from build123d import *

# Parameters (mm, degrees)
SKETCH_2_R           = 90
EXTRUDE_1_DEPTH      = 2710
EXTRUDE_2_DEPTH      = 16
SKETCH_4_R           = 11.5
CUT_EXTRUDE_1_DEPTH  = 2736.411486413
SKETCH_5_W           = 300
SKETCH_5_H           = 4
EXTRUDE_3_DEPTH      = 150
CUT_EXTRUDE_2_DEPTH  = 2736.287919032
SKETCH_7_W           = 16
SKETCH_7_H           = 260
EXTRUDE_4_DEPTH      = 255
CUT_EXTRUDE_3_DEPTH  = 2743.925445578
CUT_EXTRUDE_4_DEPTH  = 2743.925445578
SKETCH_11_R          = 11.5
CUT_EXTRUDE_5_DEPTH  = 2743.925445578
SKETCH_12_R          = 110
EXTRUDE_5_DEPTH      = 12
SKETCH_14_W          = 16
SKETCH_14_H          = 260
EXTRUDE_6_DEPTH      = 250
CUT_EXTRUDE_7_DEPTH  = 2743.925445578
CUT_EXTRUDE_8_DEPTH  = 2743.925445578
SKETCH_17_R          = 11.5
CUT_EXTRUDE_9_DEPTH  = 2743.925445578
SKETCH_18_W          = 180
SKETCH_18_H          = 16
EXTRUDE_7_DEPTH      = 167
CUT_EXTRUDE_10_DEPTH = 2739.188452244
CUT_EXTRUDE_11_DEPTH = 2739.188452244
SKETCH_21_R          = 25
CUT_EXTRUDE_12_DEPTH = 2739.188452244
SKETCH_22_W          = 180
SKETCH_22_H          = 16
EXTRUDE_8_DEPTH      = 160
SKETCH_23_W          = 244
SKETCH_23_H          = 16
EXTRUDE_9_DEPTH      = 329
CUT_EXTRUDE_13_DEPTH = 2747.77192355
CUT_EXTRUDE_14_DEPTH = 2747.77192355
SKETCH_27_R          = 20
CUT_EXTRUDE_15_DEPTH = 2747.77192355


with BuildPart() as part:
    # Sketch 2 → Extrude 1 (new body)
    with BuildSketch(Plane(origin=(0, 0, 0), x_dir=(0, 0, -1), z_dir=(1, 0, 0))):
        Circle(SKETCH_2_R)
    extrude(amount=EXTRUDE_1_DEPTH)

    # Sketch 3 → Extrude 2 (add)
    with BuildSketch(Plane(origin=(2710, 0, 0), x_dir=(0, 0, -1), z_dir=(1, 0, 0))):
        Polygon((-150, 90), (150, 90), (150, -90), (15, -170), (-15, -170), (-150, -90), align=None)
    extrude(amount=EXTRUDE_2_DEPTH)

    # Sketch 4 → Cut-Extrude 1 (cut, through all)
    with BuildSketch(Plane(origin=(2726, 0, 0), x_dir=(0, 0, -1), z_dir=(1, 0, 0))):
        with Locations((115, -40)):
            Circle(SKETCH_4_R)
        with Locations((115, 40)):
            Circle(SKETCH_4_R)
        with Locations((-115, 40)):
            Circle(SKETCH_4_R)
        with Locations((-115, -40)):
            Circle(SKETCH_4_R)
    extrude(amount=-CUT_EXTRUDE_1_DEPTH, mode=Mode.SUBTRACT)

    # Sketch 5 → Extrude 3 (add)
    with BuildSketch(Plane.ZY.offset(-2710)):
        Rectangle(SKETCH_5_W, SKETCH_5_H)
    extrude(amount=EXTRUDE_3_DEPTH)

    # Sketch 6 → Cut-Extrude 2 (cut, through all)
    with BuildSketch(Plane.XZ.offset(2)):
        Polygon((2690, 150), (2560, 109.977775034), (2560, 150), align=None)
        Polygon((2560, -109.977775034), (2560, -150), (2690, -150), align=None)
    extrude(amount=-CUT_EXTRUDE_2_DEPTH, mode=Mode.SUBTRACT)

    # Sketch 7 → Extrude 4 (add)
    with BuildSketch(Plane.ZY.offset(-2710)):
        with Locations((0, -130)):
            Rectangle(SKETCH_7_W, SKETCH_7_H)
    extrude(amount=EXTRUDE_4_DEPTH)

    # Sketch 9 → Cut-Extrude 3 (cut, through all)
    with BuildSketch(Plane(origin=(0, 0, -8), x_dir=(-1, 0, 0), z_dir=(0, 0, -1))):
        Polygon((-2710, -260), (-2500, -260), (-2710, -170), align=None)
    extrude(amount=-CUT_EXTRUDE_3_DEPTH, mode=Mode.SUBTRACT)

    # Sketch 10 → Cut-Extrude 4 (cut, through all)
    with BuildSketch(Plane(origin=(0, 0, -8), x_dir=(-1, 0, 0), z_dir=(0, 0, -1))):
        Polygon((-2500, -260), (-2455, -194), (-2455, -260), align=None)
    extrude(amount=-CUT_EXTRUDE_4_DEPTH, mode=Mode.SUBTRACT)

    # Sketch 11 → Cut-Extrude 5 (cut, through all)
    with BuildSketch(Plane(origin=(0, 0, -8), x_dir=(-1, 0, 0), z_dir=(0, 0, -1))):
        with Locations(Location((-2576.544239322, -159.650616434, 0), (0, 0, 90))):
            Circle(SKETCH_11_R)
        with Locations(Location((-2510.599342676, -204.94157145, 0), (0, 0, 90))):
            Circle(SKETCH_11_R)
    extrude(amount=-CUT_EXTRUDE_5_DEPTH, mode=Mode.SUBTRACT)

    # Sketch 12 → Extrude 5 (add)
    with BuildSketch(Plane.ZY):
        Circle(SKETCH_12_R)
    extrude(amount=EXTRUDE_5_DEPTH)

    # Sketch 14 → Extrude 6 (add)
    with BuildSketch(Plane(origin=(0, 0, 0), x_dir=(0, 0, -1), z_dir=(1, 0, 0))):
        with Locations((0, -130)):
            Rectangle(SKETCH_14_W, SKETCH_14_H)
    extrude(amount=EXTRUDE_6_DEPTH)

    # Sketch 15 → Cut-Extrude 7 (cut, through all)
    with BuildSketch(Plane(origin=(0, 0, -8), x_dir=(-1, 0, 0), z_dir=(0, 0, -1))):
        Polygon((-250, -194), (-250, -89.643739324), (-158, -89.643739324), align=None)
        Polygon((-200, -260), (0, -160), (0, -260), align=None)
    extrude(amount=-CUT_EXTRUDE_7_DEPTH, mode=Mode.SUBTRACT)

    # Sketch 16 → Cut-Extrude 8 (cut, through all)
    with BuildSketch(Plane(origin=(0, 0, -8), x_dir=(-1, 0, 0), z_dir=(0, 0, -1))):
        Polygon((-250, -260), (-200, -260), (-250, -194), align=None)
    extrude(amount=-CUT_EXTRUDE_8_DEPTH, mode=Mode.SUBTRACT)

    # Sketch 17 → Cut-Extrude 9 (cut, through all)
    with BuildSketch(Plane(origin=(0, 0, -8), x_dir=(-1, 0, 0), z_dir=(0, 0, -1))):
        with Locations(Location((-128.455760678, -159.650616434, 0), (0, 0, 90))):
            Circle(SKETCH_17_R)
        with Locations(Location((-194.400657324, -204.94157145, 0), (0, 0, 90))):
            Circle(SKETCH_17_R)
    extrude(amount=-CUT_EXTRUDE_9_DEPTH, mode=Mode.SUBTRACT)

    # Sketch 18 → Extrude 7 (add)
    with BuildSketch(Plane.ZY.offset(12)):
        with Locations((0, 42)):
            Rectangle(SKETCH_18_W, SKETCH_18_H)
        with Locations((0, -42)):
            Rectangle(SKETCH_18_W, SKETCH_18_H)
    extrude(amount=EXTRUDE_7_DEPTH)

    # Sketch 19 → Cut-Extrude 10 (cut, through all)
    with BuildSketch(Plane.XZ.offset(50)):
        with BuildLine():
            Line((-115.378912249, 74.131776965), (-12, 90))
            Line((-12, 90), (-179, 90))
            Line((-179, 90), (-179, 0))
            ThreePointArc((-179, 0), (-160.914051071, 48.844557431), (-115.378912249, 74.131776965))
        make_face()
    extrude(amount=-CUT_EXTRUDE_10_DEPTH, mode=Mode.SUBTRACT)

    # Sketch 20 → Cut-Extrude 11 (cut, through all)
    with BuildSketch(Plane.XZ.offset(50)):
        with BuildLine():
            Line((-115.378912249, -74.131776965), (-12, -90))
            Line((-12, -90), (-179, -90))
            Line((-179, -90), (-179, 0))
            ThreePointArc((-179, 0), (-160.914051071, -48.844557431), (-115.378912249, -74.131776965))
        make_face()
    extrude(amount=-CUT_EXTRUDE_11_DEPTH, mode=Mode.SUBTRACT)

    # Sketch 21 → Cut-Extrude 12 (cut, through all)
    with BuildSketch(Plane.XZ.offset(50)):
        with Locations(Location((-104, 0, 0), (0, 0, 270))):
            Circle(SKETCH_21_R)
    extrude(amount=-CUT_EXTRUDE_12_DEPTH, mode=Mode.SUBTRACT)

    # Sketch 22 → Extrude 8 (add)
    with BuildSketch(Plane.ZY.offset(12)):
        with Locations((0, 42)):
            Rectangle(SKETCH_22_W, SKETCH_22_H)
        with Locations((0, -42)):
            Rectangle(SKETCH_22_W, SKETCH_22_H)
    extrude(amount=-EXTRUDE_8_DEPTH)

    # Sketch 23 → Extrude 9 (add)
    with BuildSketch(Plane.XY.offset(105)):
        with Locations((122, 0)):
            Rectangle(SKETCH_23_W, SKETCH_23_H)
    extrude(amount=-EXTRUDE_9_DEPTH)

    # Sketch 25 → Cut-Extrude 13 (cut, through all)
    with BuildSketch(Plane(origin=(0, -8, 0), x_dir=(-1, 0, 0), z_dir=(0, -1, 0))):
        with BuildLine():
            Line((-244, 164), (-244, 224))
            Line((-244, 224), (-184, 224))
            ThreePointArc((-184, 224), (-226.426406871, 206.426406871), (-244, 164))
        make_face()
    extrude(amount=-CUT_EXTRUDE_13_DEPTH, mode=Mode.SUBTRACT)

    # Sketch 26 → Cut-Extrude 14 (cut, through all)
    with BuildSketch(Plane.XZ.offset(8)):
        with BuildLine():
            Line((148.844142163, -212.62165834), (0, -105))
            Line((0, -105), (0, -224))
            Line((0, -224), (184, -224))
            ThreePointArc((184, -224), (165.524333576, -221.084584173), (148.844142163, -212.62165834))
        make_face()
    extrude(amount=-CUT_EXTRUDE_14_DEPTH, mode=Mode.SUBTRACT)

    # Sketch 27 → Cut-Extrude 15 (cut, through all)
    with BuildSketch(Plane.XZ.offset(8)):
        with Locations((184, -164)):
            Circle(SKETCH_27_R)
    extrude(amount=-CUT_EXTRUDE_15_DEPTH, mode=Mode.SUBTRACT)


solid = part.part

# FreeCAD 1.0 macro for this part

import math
import FreeCAD as App
import Part
import Sketcher

V = App.Vector

doc = App.newDocument("Part")
body = doc.addObject("PartDesign::Body", "Body")

sketch1 = doc.addObject("Sketcher::SketchObject", "Sketch")
body.addObject(sketch1)
sketch1.AttachmentSupport = (doc.YZ_Plane, [""])
sketch1.MapMode = "FlatFace"
sketch1.addGeometry(Part.Circle(V(0, 0, 0), V(0, 0, 1), 90), False)
sketch1.addConstraint([
    Sketcher.Constraint("Coincident", 0, 3, -1, 1),
    Sketcher.Constraint("Diameter", 0, 180.0),
])
pad1 = doc.addObject("PartDesign::Pad", "Pad")
body.addObject(pad1)
pad1.Profile = sketch1
pad1.Length = 2710

sketch2 = doc.addObject("Sketcher::SketchObject", "Sketch001")
body.addObject(sketch2)
sketch2.AttachmentSupport = (doc.YZ_Plane, [""])
sketch2.MapMode = "FlatFace"
sketch2.AttachmentOffset = App.Placement(V(0, 0, 2710), App.Rotation())
sketch2.addGeometry([
    Part.LineSegment(V(90, -150, 0), V(90, 150, 0)),
    Part.LineSegment(V(90, 150, 0), V(-90, 150, 0)),
    Part.LineSegment(V(-90, 150, 0), V(-170, 15, 0)),
    Part.LineSegment(V(-170, 15, 0), V(-170, -15, 0)),
    Part.LineSegment(V(-170, -15, 0), V(-90, -150, 0)),
    Part.LineSegment(V(-90, -150, 0), V(90, -150, 0)),
], False)
sketch2.addConstraint([
    Sketcher.Constraint("Coincident", 0, 2, 1, 1),
    Sketcher.Constraint("Coincident", 1, 2, 2, 1),
    Sketcher.Constraint("Coincident", 2, 2, 3, 1),
    Sketcher.Constraint("Coincident", 3, 2, 4, 1),
    Sketcher.Constraint("Coincident", 4, 2, 5, 1),
    Sketcher.Constraint("Coincident", 5, 2, 0, 1),
    Sketcher.Constraint("Vertical", 0),
    Sketcher.Constraint("Horizontal", 1),
    Sketcher.Constraint("Vertical", 3),
    Sketcher.Constraint("Horizontal", 5),
    Sketcher.Constraint("Symmetric", 0, 2, 4, 2, -1, 1),
    Sketcher.Constraint("Vertical", 1, 2, 4, 2),
    Sketcher.Constraint("Equal", 2, 4),
    Sketcher.Constraint("DistanceX", 1, 2, 1, 1, 180.0),
    Sketcher.Constraint("DistanceY", 0, 1, 0, 2, 300.0),
    Sketcher.Constraint("DistanceY", 3, 2, 3, 1, 30.0),
    Sketcher.Constraint("DistanceX", 2, 2, -1, 1, 170.0),
])
pad2 = doc.addObject("PartDesign::Pad", "Pad001")
body.addObject(pad2)
pad2.Profile = sketch2
pad2.Length = 16

sketch3 = doc.addObject("Sketcher::SketchObject", "Sketch002")
body.addObject(sketch3)
sketch3.AttachmentSupport = (doc.YZ_Plane, [""])
sketch3.MapMode = "FlatFace"
sketch3.AttachmentOffset = App.Placement(V(0, 0, 2726), App.Rotation())
sketch3.addGeometry([
    Part.Circle(V(-40, -115, 0), V(0, 0, 1), 11.5),
    Part.Circle(V(40, -115, 0), V(0, 0, 1), 11.5),
    Part.Circle(V(40, 115, 0), V(0, 0, 1), 11.5),
    Part.Circle(V(-40, 115, 0), V(0, 0, 1), 11.5),
], False)
sketch3.addConstraint([
    Sketcher.Constraint("Equal", 0, 1),
    Sketcher.Constraint("Equal", 1, 2),
    Sketcher.Constraint("Equal", 2, 3),
    Sketcher.Constraint("Symmetric", 0, 3, 2, 3, -1, 1),
    Sketcher.Constraint("Symmetric", 1, 3, 3, 3, -1, 1),
    Sketcher.Constraint("Symmetric", 0, 3, 1, 3, -2),
    Sketcher.Constraint("Diameter", 0, 23.0),
    Sketcher.Constraint("DistanceX", 0, 3, -1, 1, 40.0),
    Sketcher.Constraint("DistanceY", 0, 3, -1, 1, 115.0),
])
pocket1 = doc.addObject("PartDesign::Pocket", "Pocket")
body.addObject(pocket1)
pocket1.Profile = sketch3
pocket1.Type = "ThroughAll"

sketch4 = doc.addObject("Sketcher::SketchObject", "Sketch003")
body.addObject(sketch4)
sketch4.AttachmentSupport = (doc.YZ_Plane, [""])
sketch4.MapMode = "FlatFace"
sketch4.AttachmentOffset = App.Placement(V(0, 0, 2710), App.Rotation())
sketch4.addGeometry([
    Part.LineSegment(V(2, -150, 0), V(-2, -150, 0)),
    Part.LineSegment(V(-2, -150, 0), V(-2, 150, 0)),
    Part.LineSegment(V(-2, 150, 0), V(2, 150, 0)),
    Part.LineSegment(V(2, 150, 0), V(2, -150, 0)),
], False)
sketch4.addConstraint([
    Sketcher.Constraint("Coincident", 0, 2, 1, 1),
    Sketcher.Constraint("Coincident", 1, 2, 2, 1),
    Sketcher.Constraint("Coincident", 2, 2, 3, 1),
    Sketcher.Constraint("Coincident", 3, 2, 0, 1),
    Sketcher.Constraint("Horizontal", 0),
    Sketcher.Constraint("Vertical", 1),
    Sketcher.Constraint("Horizontal", 2),
    Sketcher.Constraint("Vertical", 3),
    Sketcher.Constraint("Symmetric", 0, 2, 2, 2, -1, 1),
    Sketcher.Constraint("DistanceX", 0, 2, 0, 1, 4.0),
    Sketcher.Constraint("DistanceY", 1, 1, 1, 2, 300.0),
])
pad3 = doc.addObject("PartDesign::Pad", "Pad002")
body.addObject(pad3)
pad3.Profile = sketch4
pad3.Length = 150
pad3.Reversed = True

sketch5 = doc.addObject("Sketcher::SketchObject", "Sketch004")
body.addObject(sketch5)
sketch5.AttachmentSupport = (doc.XZ_Plane, [""])
sketch5.MapMode = "FlatFace"
sketch5.AttachmentOffset = App.Placement(V(0, 0, 2), App.Rotation())
sketch5.addGeometry([
    Part.LineSegment(V(2560, 109.977775, 0), V(2690, 150, 0)),
    Part.LineSegment(V(2690, 150, 0), V(2560, 150, 0)),
    Part.LineSegment(V(2560, 150, 0), V(2560, 109.977775, 0)),
    Part.LineSegment(V(2560, -109.977775, 0), V(2560, -150, 0)),
    Part.LineSegment(V(2560, -150, 0), V(2690, -150, 0)),
    Part.LineSegment(V(2690, -150, 0), V(2560, -109.977775, 0)),
], False)
sketch5.addConstraint([
    Sketcher.Constraint("Coincident", 0, 2, 1, 1),
    Sketcher.Constraint("Coincident", 1, 2, 2, 1),
    Sketcher.Constraint("Coincident", 2, 2, 0, 1),
    Sketcher.Constraint("Coincident", 3, 2, 4, 1),
    Sketcher.Constraint("Coincident", 4, 2, 5, 1),
    Sketcher.Constraint("Coincident", 5, 2, 3, 1),
    Sketcher.Constraint("Horizontal", 1),
    Sketcher.Constraint("Vertical", 2),
    Sketcher.Constraint("Vertical", 3),
    Sketcher.Constraint("Horizontal", 4),
    Sketcher.Constraint("Symmetric", 1, 2, 3, 2, -1),
    Sketcher.Constraint("Vertical", 0, 2, 4, 2),
    Sketcher.Constraint("Equal", 2, 3),
    Sketcher.Constraint("DistanceX", 1, 2, 1, 1, 130.0),
    Sketcher.Constraint("DistanceX", -1, 1, 0, 2, 2690.0),
    Sketcher.Constraint("DistanceY", -1, 1, 0, 2, 150.0),
    Sketcher.Constraint("DistanceY", 2, 2, 2, 1, 40.022225),
])
pocket2 = doc.addObject("PartDesign::Pocket", "Pocket001")
body.addObject(pocket2)
pocket2.Profile = sketch5
pocket2.Type = "ThroughAll"

sketch6 = doc.addObject("Sketcher::SketchObject", "Sketch005")
body.addObject(sketch6)
sketch6.AttachmentSupport = (doc.YZ_Plane, [""])
sketch6.MapMode = "FlatFace"
sketch6.AttachmentOffset = App.Placement(V(0, 0, 2710), App.Rotation())
sketch6.addGeometry([
    Part.LineSegment(V(0, -8, 0), V(-260, -8, 0)),
    Part.LineSegment(V(-260, -8, 0), V(-260, 8, 0)),
    Part.LineSegment(V(-260, 8, 0), V(0, 8, 0)),
    Part.LineSegment(V(0, 8, 0), V(0, -8, 0)),
], False)
sketch6.addConstraint([
    Sketcher.Constraint("Coincident", 0, 2, 1, 1),
    Sketcher.Constraint("Coincident", 1, 2, 2, 1),
    Sketcher.Constraint("Coincident", 2, 2, 3, 1),
    Sketcher.Constraint("Coincident", 3, 2, 0, 1),
    Sketcher.Constraint("Horizontal", 0),
    Sketcher.Constraint("Vertical", 1),
    Sketcher.Constraint("Horizontal", 2),
    Sketcher.Constraint("Vertical", 3),
    Sketcher.Constraint("Symmetric", 2, 2, 3, 2, -1, 1),
    Sketcher.Constraint("DistanceX", 0, 2, 0, 1, 260.0),
    Sketcher.Constraint("DistanceY", 1, 1, 1, 2, 16.0),
])
pad4 = doc.addObject("PartDesign::Pad", "Pad003")
body.addObject(pad4)
pad4.Profile = sketch6
pad4.Length = 255
pad4.Reversed = True

sketch7 = doc.addObject("Sketcher::SketchObject", "Sketch006")
body.addObject(sketch7)
sketch7.AttachmentSupport = (doc.XY_Plane, [""])
sketch7.MapMode = "FlatFace"
sketch7.AttachmentOffset = App.Placement(V(0, 0, -8), App.Rotation())
sketch7.addGeometry([
    Part.LineSegment(V(2710, -260, 0), V(2500, -260, 0)),
    Part.LineSegment(V(2500, -260, 0), V(2710, -170, 0)),
    Part.LineSegment(V(2710, -170, 0), V(2710, -260, 0)),
], False)
sketch7.addConstraint([
    Sketcher.Constraint("Coincident", 0, 2, 1, 1),
    Sketcher.Constraint("Coincident", 1, 2, 2, 1),
    Sketcher.Constraint("Coincident", 2, 2, 0, 1),
    Sketcher.Constraint("Horizontal", 0),
    Sketcher.Constraint("Vertical", 2),
    Sketcher.Constraint("DistanceX", 0, 2, 0, 1, 210.0),
    Sketcher.Constraint("DistanceY", 2, 2, 2, 1, 90.0),
    Sketcher.Constraint("DistanceX", -1, 1, 0, 2, 2500.0),
    Sketcher.Constraint("DistanceY", 0, 2, -1, 1, 260.0),
])
pocket3 = doc.addObject("PartDesign::Pocket", "Pocket002")
body.addObject(pocket3)
pocket3.Profile = sketch7
pocket3.Type = "ThroughAll"
pocket3.Reversed = True

sketch8 = doc.addObject("Sketcher::SketchObject", "Sketch007")
body.addObject(sketch8)
sketch8.AttachmentSupport = (doc.XY_Plane, [""])
sketch8.MapMode = "FlatFace"
sketch8.AttachmentOffset = App.Placement(V(0, 0, -8), App.Rotation())
sketch8.addGeometry([
    Part.LineSegment(V(2455, -194, 0), V(2500, -260, 0)),
    Part.LineSegment(V(2500, -260, 0), V(2455, -260, 0)),
    Part.LineSegment(V(2455, -260, 0), V(2455, -194, 0)),
], False)
sketch8.addConstraint([
    Sketcher.Constraint("Coincident", 0, 2, 1, 1),
    Sketcher.Constraint("Coincident", 1, 2, 2, 1),
    Sketcher.Constraint("Coincident", 2, 2, 0, 1),
    Sketcher.Constraint("Horizontal", 1),
    Sketcher.Constraint("Vertical", 2),
    Sketcher.Constraint("DistanceX", 1, 2, 1, 1, 45.0),
    Sketcher.Constraint("DistanceY", 2, 1, 2, 2, 66.0),
    Sketcher.Constraint("DistanceX", -1, 1, 0, 2, 2500.0),
    Sketcher.Constraint("DistanceY", 0, 2, -1, 1, 260.0),
])
pocket4 = doc.addObject("PartDesign::Pocket", "Pocket003")
body.addObject(pocket4)
pocket4.Profile = sketch8
pocket4.Type = "ThroughAll"
pocket4.Reversed = True

sketch9 = doc.addObject("Sketcher::SketchObject", "Sketch008")
body.addObject(sketch9)
sketch9.AttachmentSupport = (doc.XY_Plane, [""])
sketch9.MapMode = "FlatFace"
sketch9.AttachmentOffset = App.Placement(V(0, 0, -8), App.Rotation())
sketch9.addGeometry([
    Part.Circle(V(2576.544239, -159.650616, 0), V(0, 0, 1), 11.5),
    Part.Circle(V(2510.599343, -204.941571, 0), V(0, 0, 1), 11.5),
], False)
sketch9.addConstraint([
    Sketcher.Constraint("Equal", 0, 1),
    Sketcher.Constraint("Diameter", 0, 23.0),
    Sketcher.Constraint("DistanceX", -1, 1, 0, 3, 2576.544239),
    Sketcher.Constraint("DistanceY", 1, 3, -1, 1, 204.941571),
    Sketcher.Constraint("DistanceY", 0, 3, -1, 1, 159.650616),
    Sketcher.Constraint("DistanceX", -1, 1, 1, 3, 2510.599343),
])
pocket5 = doc.addObject("PartDesign::Pocket", "Pocket004")
body.addObject(pocket5)
pocket5.Profile = sketch9
pocket5.Type = "ThroughAll"
pocket5.Reversed = True

sketch10 = doc.addObject("Sketcher::SketchObject", "Sketch009")
body.addObject(sketch10)
sketch10.AttachmentSupport = (doc.YZ_Plane, [""])
sketch10.MapMode = "FlatFace"
sketch10.addGeometry(Part.Circle(V(0, 0, 0), V(0, 0, 1), 110), False)
sketch10.addConstraint([
    Sketcher.Constraint("Coincident", 0, 3, -1, 1),
    Sketcher.Constraint("Diameter", 0, 220.0),
])
pad5 = doc.addObject("PartDesign::Pad", "Pad004")
body.addObject(pad5)
pad5.Profile = sketch10
pad5.Length = 12
pad5.Reversed = True

sketch11 = doc.addObject("Sketcher::SketchObject", "Sketch010")
body.addObject(sketch11)
sketch11.AttachmentSupport = (doc.YZ_Plane, [""])
sketch11.MapMode = "FlatFace"
sketch11.addGeometry([
    Part.LineSegment(V(0, 8, 0), V(-260, 8, 0)),
    Part.LineSegment(V(-260, 8, 0), V(-260, -8, 0)),
    Part.LineSegment(V(-260, -8, 0), V(0, -8, 0)),
    Part.LineSegment(V(0, -8, 0), V(0, 8, 0)),
], False)
sketch11.addConstraint([
    Sketcher.Constraint("Coincident", 0, 2, 1, 1),
    Sketcher.Constraint("Coincident", 1, 2, 2, 1),
    Sketcher.Constraint("Coincident", 2, 2, 3, 1),
    Sketcher.Constraint("Coincident", 3, 2, 0, 1),
    Sketcher.Constraint("Horizontal", 0),
    Sketcher.Constraint("Vertical", 1),
    Sketcher.Constraint("Horizontal", 2),
    Sketcher.Constraint("Vertical", 3),
    Sketcher.Constraint("Symmetric", 2, 2, 3, 2, -1, 1),
    Sketcher.Constraint("DistanceX", 0, 2, 0, 1, 260.0),
    Sketcher.Constraint("DistanceY", 1, 2, 1, 1, 16.0),
])
pad6 = doc.addObject("PartDesign::Pad", "Pad005")
body.addObject(pad6)
pad6.Profile = sketch11
pad6.Length = 250

sketch12 = doc.addObject("Sketcher::SketchObject", "Sketch011")
body.addObject(sketch12)
sketch12.AttachmentSupport = (doc.XY_Plane, [""])
sketch12.MapMode = "FlatFace"
sketch12.AttachmentOffset = App.Placement(V(0, 0, -8), App.Rotation())
sketch12.addGeometry([
    Part.LineSegment(V(250, -89.643739, 0), V(250, -194, 0)),
    Part.LineSegment(V(250, -194, 0), V(158, -89.643739, 0)),
    Part.LineSegment(V(158, -89.643739, 0), V(250, -89.643739, 0)),
    Part.LineSegment(V(0, -160, 0), V(200, -260, 0)),
    Part.LineSegment(V(200, -260, 0), V(0, -260, 0)),
    Part.LineSegment(V(0, -260, 0), V(0, -160, 0)),
], False)
sketch12.addConstraint([
    Sketcher.Constraint("Coincident", 0, 2, 1, 1),
    Sketcher.Constraint("Coincident", 1, 2, 2, 1),
    Sketcher.Constraint("Coincident", 2, 2, 0, 1),
    Sketcher.Constraint("Coincident", 3, 2, 4, 1),
    Sketcher.Constraint("Coincident", 4, 2, 5, 1),
    Sketcher.Constraint("Coincident", 5, 2, 3, 1),
    Sketcher.Constraint("Vertical", 0),
    Sketcher.Constraint("Horizontal", 2),
    Sketcher.Constraint("Horizontal", 4),
    Sketcher.Constraint("Vertical", 5),
    Sketcher.Constraint("PointOnObject", 4, 2, -2),
    Sketcher.Constraint("DistanceX", 2, 1, 2, 2, 92.0),
    Sketcher.Constraint("DistanceX", 4, 2, 4, 1, 200.0),
    Sketcher.Constraint("DistanceY", 5, 1, 5, 2, 100.0),
    Sketcher.Constraint("DistanceX", -1, 1, 0, 2, 250.0),
    Sketcher.Constraint("DistanceY", 0, 2, -1, 1, 194.0),
    Sketcher.Constraint("DistanceY", 3, 2, -1, 1, 260.0),
    Sketcher.Constraint("DistanceY", 0, 2, 0, 1, 104.356261),
])
pocket6 = doc.addObject("PartDesign::Pocket", "Pocket005")
body.addObject(pocket6)
pocket6.Profile = sketch12
pocket6.Type = "ThroughAll"
pocket6.Reversed = True

sketch13 = doc.addObject("Sketcher::SketchObject", "Sketch012")
body.addObject(sketch13)
sketch13.AttachmentSupport = (doc.XY_Plane, [""])
sketch13.MapMode = "FlatFace"
sketch13.AttachmentOffset = App.Placement(V(0, 0, -8), App.Rotation())
sketch13.addGeometry([
    Part.LineSegment(V(250, -260, 0), V(200, -260, 0)),
    Part.LineSegment(V(200, -260, 0), V(250, -194, 0)),
    Part.LineSegment(V(250, -194, 0), V(250, -260, 0)),
], False)
sketch13.addConstraint([
    Sketcher.Constraint("Coincident", 0, 2, 1, 1),
    Sketcher.Constraint("Coincident", 1, 2, 2, 1),
    Sketcher.Constraint("Coincident", 2, 2, 0, 1),
    Sketcher.Constraint("Horizontal", 0),
    Sketcher.Constraint("Vertical", 2),
    Sketcher.Constraint("DistanceX", 0, 2, 0, 1, 50.0),
    Sketcher.Constraint("DistanceY", 2, 2, 2, 1, 66.0),
    Sketcher.Constraint("DistanceX", -1, 1, 0, 2, 200.0),
    Sketcher.Constraint("DistanceY", 0, 2, -1, 1, 260.0),
])
pocket7 = doc.addObject("PartDesign::Pocket", "Pocket006")
body.addObject(pocket7)
pocket7.Profile = sketch13
pocket7.Type = "ThroughAll"
pocket7.Reversed = True

sketch14 = doc.addObject("Sketcher::SketchObject", "Sketch013")
body.addObject(sketch14)
sketch14.AttachmentSupport = (doc.XY_Plane, [""])
sketch14.MapMode = "FlatFace"
sketch14.AttachmentOffset = App.Placement(V(0, 0, -8), App.Rotation())
sketch14.addGeometry([
    Part.Circle(V(128.455761, -159.650616, 0), V(0, 0, 1), 11.5),
    Part.Circle(V(194.400657, -204.941571, 0), V(0, 0, 1), 11.5),
], False)
sketch14.addConstraint([
    Sketcher.Constraint("Equal", 0, 1),
    Sketcher.Constraint("Diameter", 0, 23.0),
    Sketcher.Constraint("DistanceX", -1, 1, 0, 3, 128.455761),
    Sketcher.Constraint("DistanceY", 1, 3, -1, 1, 204.941571),
    Sketcher.Constraint("DistanceY", 0, 3, -1, 1, 159.650616),
    Sketcher.Constraint("DistanceX", -1, 1, 1, 3, 194.400657),
])
pocket8 = doc.addObject("PartDesign::Pocket", "Pocket007")
body.addObject(pocket8)
pocket8.Profile = sketch14
pocket8.Type = "ThroughAll"
pocket8.Reversed = True

sketch15 = doc.addObject("Sketcher::SketchObject", "Sketch014")
body.addObject(sketch15)
sketch15.AttachmentSupport = (doc.YZ_Plane, [""])
sketch15.MapMode = "FlatFace"
sketch15.AttachmentOffset = App.Placement(V(0, 0, -12), App.Rotation())
sketch15.addGeometry([
    Part.LineSegment(V(50, -90, 0), V(34, -90, 0)),
    Part.LineSegment(V(34, -90, 0), V(34, 90, 0)),
    Part.LineSegment(V(34, 90, 0), V(50, 90, 0)),
    Part.LineSegment(V(50, 90, 0), V(50, -90, 0)),
    Part.LineSegment(V(-34, -90, 0), V(-50, -90, 0)),
    Part.LineSegment(V(-50, -90, 0), V(-50, 90, 0)),
    Part.LineSegment(V(-50, 90, 0), V(-34, 90, 0)),
    Part.LineSegment(V(-34, 90, 0), V(-34, -90, 0)),
], False)
sketch15.addConstraint([
    Sketcher.Constraint("Coincident", 0, 2, 1, 1),
    Sketcher.Constraint("Coincident", 1, 2, 2, 1),
    Sketcher.Constraint("Coincident", 2, 2, 3, 1),
    Sketcher.Constraint("Coincident", 3, 2, 0, 1),
    Sketcher.Constraint("Coincident", 4, 2, 5, 1),
    Sketcher.Constraint("Coincident", 5, 2, 6, 1),
    Sketcher.Constraint("Coincident", 6, 2, 7, 1),
    Sketcher.Constraint("Coincident", 7, 2, 4, 1),
    Sketcher.Constraint("Horizontal", 0),
    Sketcher.Constraint("Vertical", 1),
    Sketcher.Constraint("Horizontal", 2),
    Sketcher.Constraint("Vertical", 3),
    Sketcher.Constraint("Horizontal", 4),
    Sketcher.Constraint("Vertical", 5),
    Sketcher.Constraint("Horizontal", 6),
    Sketcher.Constraint("Vertical", 7),
    Sketcher.Constraint("Symmetric", 2, 2, 4, 2, -1, 1),
    Sketcher.Constraint("Symmetric", 0, 2, 6, 2, -1, 1),
    Sketcher.Constraint("Horizontal", 3, 2, 4, 2),
    Sketcher.Constraint("DistanceX", 0, 2, 0, 1, 16.0),
    Sketcher.Constraint("DistanceY", 1, 1, 1, 2, 180.0),
    Sketcher.Constraint("DistanceX", -1, 1, 0, 2, 34.0),
])
pad7 = doc.addObject("PartDesign::Pad", "Pad006")
body.addObject(pad7)
pad7.Profile = sketch15
pad7.Length = 167
pad7.Reversed = True

sketch16 = doc.addObject("Sketcher::SketchObject", "Sketch015")
body.addObject(sketch16)
sketch16.AttachmentSupport = (doc.XZ_Plane, [""])
sketch16.MapMode = "FlatFace"
sketch16.AttachmentOffset = App.Placement(V(0, 0, 50), App.Rotation())
sketch16.addGeometry([
    Part.LineSegment(V(-115.378912, 74.131777, 0), V(-12, 90, 0)),
    Part.LineSegment(V(-12, 90, 0), V(-179, 90, 0)),
    Part.LineSegment(V(-179, 90, 0), V(-179, 0, 0)),
    Part.ArcOfCircle(Part.Circle(V(-104, 0, 0), V(0, 0, 1), 75), math.radians(98.726548), math.radians(180)),
], False)
sketch16.addConstraint([
    Sketcher.Constraint("Coincident", 0, 2, 1, 1),
    Sketcher.Constraint("Coincident", 1, 2, 2, 1),
    Sketcher.Constraint("Tangent", 2, 2, 3, 2),
    Sketcher.Constraint("Tangent", 3, 1, 0, 1),
    Sketcher.Constraint("Horizontal", 1),
    Sketcher.Constraint("Vertical", 2),
    Sketcher.Constraint("PointOnObject", 3, 3, -1),
    Sketcher.Constraint("Radius", 3, 75.0),
    Sketcher.Constraint("DistanceX", 1, 2, 1, 1, 167.0),
    Sketcher.Constraint("DistanceY", 2, 2, 2, 1, 90.0),
    Sketcher.Constraint("DistanceX", 3, 3, -1, 1, 104.0),
])
pocket9 = doc.addObject("PartDesign::Pocket", "Pocket008")
body.addObject(pocket9)
pocket9.Profile = sketch16
pocket9.Type = "ThroughAll"

sketch17 = doc.addObject("Sketcher::SketchObject", "Sketch016")
body.addObject(sketch17)
sketch17.AttachmentSupport = (doc.XZ_Plane, [""])
sketch17.MapMode = "FlatFace"
sketch17.AttachmentOffset = App.Placement(V(0, 0, 50), App.Rotation())
sketch17.addGeometry([
    Part.LineSegment(V(-12, -90, 0), V(-115.378912, -74.131777, 0)),
    Part.ArcOfCircle(Part.Circle(V(-104, 0, 0), V(0, 0, 1), 75), math.radians(-180), math.radians(-98.726548)),
    Part.LineSegment(V(-179, 0, 0), V(-179, -90, 0)),
    Part.LineSegment(V(-179, -90, 0), V(-12, -90, 0)),
], False)
sketch17.addConstraint([
    Sketcher.Constraint("Tangent", 0, 2, 1, 2),
    Sketcher.Constraint("Tangent", 1, 1, 2, 1),
    Sketcher.Constraint("Coincident", 2, 2, 3, 1),
    Sketcher.Constraint("Coincident", 3, 2, 0, 1),
    Sketcher.Constraint("Vertical", 2),
    Sketcher.Constraint("Horizontal", 3),
    Sketcher.Constraint("PointOnObject", 1, 3, -1),
    Sketcher.Constraint("Radius", 1, 75.0),
    Sketcher.Constraint("DistanceX", 3, 1, 3, 2, 167.0),
    Sketcher.Constraint("DistanceY", 2, 2, 2, 1, 90.0),
    Sketcher.Constraint("DistanceX", 1, 3, -1, 1, 104.0),
])
pocket10 = doc.addObject("PartDesign::Pocket", "Pocket009")
body.addObject(pocket10)
pocket10.Profile = sketch17
pocket10.Type = "ThroughAll"

sketch18 = doc.addObject("Sketcher::SketchObject", "Sketch017")
body.addObject(sketch18)
sketch18.AttachmentSupport = (doc.XZ_Plane, [""])
sketch18.MapMode = "FlatFace"
sketch18.AttachmentOffset = App.Placement(V(0, 0, 50), App.Rotation())
sketch18.addGeometry(Part.Circle(V(-104, 0, 0), V(0, 0, 1), 25), False)
sketch18.addConstraint([
    Sketcher.Constraint("PointOnObject", 0, 3, -1),
    Sketcher.Constraint("Diameter", 0, 50.0),
    Sketcher.Constraint("DistanceX", 0, 3, -1, 1, 104.0),
])
pocket11 = doc.addObject("PartDesign::Pocket", "Pocket010")
body.addObject(pocket11)
pocket11.Profile = sketch18
pocket11.Type = "ThroughAll"

sketch19 = doc.addObject("Sketcher::SketchObject", "Sketch018")
body.addObject(sketch19)
sketch19.AttachmentSupport = (doc.YZ_Plane, [""])
sketch19.MapMode = "FlatFace"
sketch19.AttachmentOffset = App.Placement(V(0, 0, -12), App.Rotation())
sketch19.addGeometry([
    Part.LineSegment(V(50, -90, 0), V(34, -90, 0)),
    Part.LineSegment(V(34, -90, 0), V(34, 90, 0)),
    Part.LineSegment(V(34, 90, 0), V(50, 90, 0)),
    Part.LineSegment(V(50, 90, 0), V(50, -90, 0)),
    Part.LineSegment(V(-34, -90, 0), V(-50, -90, 0)),
    Part.LineSegment(V(-50, -90, 0), V(-50, 90, 0)),
    Part.LineSegment(V(-50, 90, 0), V(-34, 90, 0)),
    Part.LineSegment(V(-34, 90, 0), V(-34, -90, 0)),
], False)
sketch19.addConstraint([
    Sketcher.Constraint("Coincident", 0, 2, 1, 1),
    Sketcher.Constraint("Coincident", 1, 2, 2, 1),
    Sketcher.Constraint("Coincident", 2, 2, 3, 1),
    Sketcher.Constraint("Coincident", 3, 2, 0, 1),
    Sketcher.Constraint("Coincident", 4, 2, 5, 1),
    Sketcher.Constraint("Coincident", 5, 2, 6, 1),
    Sketcher.Constraint("Coincident", 6, 2, 7, 1),
    Sketcher.Constraint("Coincident", 7, 2, 4, 1),
    Sketcher.Constraint("Horizontal", 0),
    Sketcher.Constraint("Vertical", 1),
    Sketcher.Constraint("Horizontal", 2),
    Sketcher.Constraint("Vertical", 3),
    Sketcher.Constraint("Horizontal", 4),
    Sketcher.Constraint("Vertical", 5),
    Sketcher.Constraint("Horizontal", 6),
    Sketcher.Constraint("Vertical", 7),
    Sketcher.Constraint("Symmetric", 2, 2, 4, 2, -1, 1),
    Sketcher.Constraint("Symmetric", 0, 2, 6, 2, -1, 1),
    Sketcher.Constraint("Horizontal", 3, 2, 4, 2),
    Sketcher.Constraint("DistanceX", 0, 2, 0, 1, 16.0),
    Sketcher.Constraint("DistanceY", 1, 1, 1, 2, 180.0),
    Sketcher.Constraint("DistanceX", -1, 1, 0, 2, 34.0),
])
pad8 = doc.addObject("PartDesign::Pad", "Pad007")
body.addObject(pad8)
pad8.Profile = sketch19
pad8.Length = 160

sketch20 = doc.addObject("Sketcher::SketchObject", "Sketch019")
body.addObject(sketch20)
sketch20.AttachmentSupport = (doc.XY_Plane, [""])
sketch20.MapMode = "FlatFace"
sketch20.AttachmentOffset = App.Placement(V(0, 0, 105), App.Rotation())
sketch20.addGeometry([
    Part.LineSegment(V(0, 8, 0), V(0, -8, 0)),
    Part.LineSegment(V(0, -8, 0), V(244, -8, 0)),
    Part.LineSegment(V(244, -8, 0), V(244, 8, 0)),
    Part.LineSegment(V(244, 8, 0), V(0, 8, 0)),
], False)
sketch20.addConstraint([
    Sketcher.Constraint("Coincident", 0, 2, 1, 1),
    Sketcher.Constraint("Coincident", 1, 2, 2, 1),
    Sketcher.Constraint("Coincident", 2, 2, 3, 1),
    Sketcher.Constraint("Coincident", 3, 2, 0, 1),
    Sketcher.Constraint("Vertical", 0),
    Sketcher.Constraint("Horizontal", 1),
    Sketcher.Constraint("Vertical", 2),
    Sketcher.Constraint("Horizontal", 3),
    Sketcher.Constraint("Symmetric", 0, 2, 3, 2, -1, 1),
    Sketcher.Constraint("DistanceX", 1, 1, 1, 2, 244.0),
    Sketcher.Constraint("DistanceY", 0, 2, 0, 1, 16.0),
])
pad9 = doc.addObject("PartDesign::Pad", "Pad008")
body.addObject(pad9)
pad9.Profile = sketch20
pad9.Length = 329
pad9.Reversed = True

sketch21 = doc.addObject("Sketcher::SketchObject", "Sketch020")
body.addObject(sketch21)
sketch21.AttachmentSupport = (doc.XZ_Plane, [""])
sketch21.MapMode = "FlatFace"
sketch21.AttachmentOffset = App.Placement(V(0, 0, 8), App.Rotation())
sketch21.addGeometry([
    Part.LineSegment(V(244, -224, 0), V(244, -164, 0)),
    Part.ArcOfCircle(Part.Circle(V(184, -164, 0), V(0, 0, 1), 60), math.radians(-90), math.radians(0)),
    Part.LineSegment(V(184, -224, 0), V(244, -224, 0)),
], False)
sketch21.addConstraint([
    Sketcher.Constraint("Tangent", 0, 2, 1, 2),
    Sketcher.Constraint("Tangent", 1, 1, 2, 1),
    Sketcher.Constraint("Coincident", 2, 2, 0, 1),
    Sketcher.Constraint("Vertical", 0),
    Sketcher.Constraint("Horizontal", 2),
    Sketcher.Constraint("Radius", 1, 60.0),
    Sketcher.Constraint("DistanceX", -1, 1, 1, 3, 184.0),
    Sketcher.Constraint("DistanceY", 1, 3, -1, 1, 164.0),
])
pocket12 = doc.addObject("PartDesign::Pocket", "Pocket011")
body.addObject(pocket12)
pocket12.Profile = sketch21
pocket12.Type = "ThroughAll"

sketch22 = doc.addObject("Sketcher::SketchObject", "Sketch021")
body.addObject(sketch22)
sketch22.AttachmentSupport = (doc.XZ_Plane, [""])
sketch22.MapMode = "FlatFace"
sketch22.AttachmentOffset = App.Placement(V(0, 0, 8), App.Rotation())
sketch22.addGeometry([
    Part.LineSegment(V(148.844142, -212.621658, 0), V(0, -105, 0)),
    Part.LineSegment(V(0, -105, 0), V(0, -224, 0)),
    Part.LineSegment(V(0, -224, 0), V(184, -224, 0)),
    Part.ArcOfCircle(Part.Circle(V(184, -164, 0), V(0, 0, 1), 60), math.radians(-125.868786), math.radians(-90)),
], False)
sketch22.addConstraint([
    Sketcher.Constraint("Coincident", 0, 2, 1, 1),
    Sketcher.Constraint("Coincident", 1, 2, 2, 1),
    Sketcher.Constraint("Tangent", 2, 2, 3, 2),
    Sketcher.Constraint("Tangent", 3, 1, 0, 1),
    Sketcher.Constraint("Vertical", 1),
    Sketcher.Constraint("Horizontal", 2),
    Sketcher.Constraint("PointOnObject", 0, 2, -2),
    Sketcher.Constraint("Radius", 3, 60.0),
    Sketcher.Constraint("DistanceX", 2, 1, 2, 2, 184.0),
    Sketcher.Constraint("DistanceY", 1, 2, 1, 1, 119.0),
    Sketcher.Constraint("DistanceY", 3, 3, -1, 1, 164.0),
])
pocket13 = doc.addObject("PartDesign::Pocket", "Pocket012")
body.addObject(pocket13)
pocket13.Profile = sketch22
pocket13.Type = "ThroughAll"

sketch23 = doc.addObject("Sketcher::SketchObject", "Sketch022")
body.addObject(sketch23)
sketch23.AttachmentSupport = (doc.XZ_Plane, [""])
sketch23.MapMode = "FlatFace"
sketch23.AttachmentOffset = App.Placement(V(0, 0, 8), App.Rotation())
sketch23.addGeometry(Part.Circle(V(184, -164, 0), V(0, 0, 1), 20), False)
sketch23.addConstraint([
    Sketcher.Constraint("Diameter", 0, 40.0),
    Sketcher.Constraint("DistanceX", -1, 1, 0, 3, 184.0),
    Sketcher.Constraint("DistanceY", 0, 3, -1, 1, 164.0),
])
pocket14 = doc.addObject("PartDesign::Pocket", "Pocket013")
body.addObject(pocket14)
pocket14.Profile = sketch23
pocket14.Type = "ThroughAll"

doc.recompute()
